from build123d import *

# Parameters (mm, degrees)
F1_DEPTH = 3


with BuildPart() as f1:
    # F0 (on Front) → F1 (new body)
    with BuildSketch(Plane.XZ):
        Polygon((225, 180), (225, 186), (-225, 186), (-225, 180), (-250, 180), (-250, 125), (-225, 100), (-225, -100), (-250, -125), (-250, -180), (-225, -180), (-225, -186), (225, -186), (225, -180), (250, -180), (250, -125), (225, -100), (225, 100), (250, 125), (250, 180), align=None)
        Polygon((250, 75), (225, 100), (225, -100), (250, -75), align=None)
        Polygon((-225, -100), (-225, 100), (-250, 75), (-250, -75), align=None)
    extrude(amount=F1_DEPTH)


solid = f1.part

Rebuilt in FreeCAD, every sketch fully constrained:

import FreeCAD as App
import Part
import Sketcher

doc = App.newDocument("Part")
body = doc.addObject("PartDesign::Body", "Body")

# Sketch on XZ plane
sketch1 = body.newObject("Sketcher::SketchObject", "Sketch")
sketch1.AttachmentSupport = (doc.getObject("XZ_Plane"), [""])
sketch1.MapMode = "FlatFace"
sketch1.addGeometry([
    Part.LineSegment(App.Vector(225, 180, 0), App.Vector(225, 186, 0)),  # 0
    Part.LineSegment(App.Vector(225, 186, 0), App.Vector(-225, 186, 0)),  # 1
    Part.LineSegment(App.Vector(-225, 186, 0), App.Vector(-225, 180, 0)),  # 2
    Part.LineSegment(App.Vector(-225, 180, 0), App.Vector(-250, 180, 0)),  # 3
    Part.LineSegment(App.Vector(-250, 180, 0), App.Vector(-250, 125, 0)),  # 4
    Part.LineSegment(App.Vector(-250, 125, 0), App.Vector(-225, 100, 0)),  # 5
    Part.LineSegment(App.Vector(-225, 100, 0), App.Vector(-250, 75, 0)),  # 6
    Part.LineSegment(App.Vector(-250, 75, 0), App.Vector(-250, -75, 0)),  # 7
    Part.LineSegment(App.Vector(-250, -75, 0), App.Vector(-225, -100, 0)),  # 8
    Part.LineSegment(App.Vector(-225, -100, 0), App.Vector(-250, -125, 0)),  # 9
    Part.LineSegment(App.Vector(-250, -125, 0), App.Vector(-250, -180, 0)),  # 10
    Part.LineSegment(App.Vector(-250, -180, 0), App.Vector(-225, -180, 0)),  # 11
    Part.LineSegment(App.Vector(-225, -180, 0), App.Vector(-225, -186, 0)),  # 12
    Part.LineSegment(App.Vector(-225, -186, 0), App.Vector(225, -186, 0)),  # 13
    Part.LineSegment(App.Vector(225, -186, 0), App.Vector(225, -180, 0)),  # 14
    Part.LineSegment(App.Vector(225, -180, 0), App.Vector(250, -180, 0)),  # 15
    Part.LineSegment(App.Vector(250, -180, 0), App.Vector(250, -125, 0)),  # 16
    Part.LineSegment(App.Vector(250, -125, 0), App.Vector(225, -100, 0)),  # 17
    Part.LineSegment(App.Vector(225, -100, 0), App.Vector(250, -75, 0)),  # 18
    Part.LineSegment(App.Vector(250, -75, 0), App.Vector(250, 75, 0)),  # 19
    Part.LineSegment(App.Vector(250, 75, 0), App.Vector(225, 100, 0)),  # 20
    Part.LineSegment(App.Vector(225, 100, 0), App.Vector(250, 125, 0)),  # 21
    Part.LineSegment(App.Vector(250, 125, 0), App.Vector(250, 180, 0)),  # 22
    Part.LineSegment(App.Vector(250, 180, 0), App.Vector(225, 180, 0)),  # 23
], False)
sketch1.addConstraint([
    Sketcher.Constraint("Coincident", 0, 2, 1, 1),
    Sketcher.Constraint("Coincident", 1, 2, 2, 1),
    Sketcher.Constraint("Coincident", 2, 2, 3, 1),
    Sketcher.Constraint("Coincident", 3, 2, 4, 1),
    Sketcher.Constraint("Coincident", 4, 2, 5, 1),
    Sketcher.Constraint("Coincident", 5, 2, 6, 1),
    Sketcher.Constraint("Coincident", 6, 2, 7, 1),
    Sketcher.Constraint("Coincident", 7, 2, 8, 1),
    Sketcher.Constraint("Coincident", 8, 2, 9, 1),
    Sketcher.Constraint("Coincident", 9, 2, 10, 1),
    Sketcher.Constraint("Coincident", 10, 2, 11, 1),
    Sketcher.Constraint("Coincident", 11, 2, 12, 1),
    Sketcher.Constraint("Coincident", 12, 2, 13, 1),
    Sketcher.Constraint("Coincident", 13, 2, 14, 1),
    Sketcher.Constraint("Coincident", 14, 2, 15, 1),
    Sketcher.Constraint("Coincident", 15, 2, 16, 1),
    Sketcher.Constraint("Coincident", 16, 2, 17, 1),
    Sketcher.Constraint("Coincident", 17, 2, 18, 1),
    Sketcher.Constraint("Coincident", 18, 2, 19, 1),
    Sketcher.Constraint("Coincident", 19, 2, 20, 1),
    Sketcher.Constraint("Coincident", 20, 2, 21, 1),
    Sketcher.Constraint("Coincident", 21, 2, 22, 1),
    Sketcher.Constraint("Coincident", 22, 2, 23, 1),
    Sketcher.Constraint("Coincident", 23, 2, 0, 1),
    Sketcher.Constraint("Vertical", 0),
    Sketcher.Constraint("Horizontal", 1),
    Sketcher.Constraint("Vertical", 2),
    Sketcher.Constraint("Horizontal", 3),
    Sketcher.Constraint("Vertical", 4),
    Sketcher.Constraint("Vertical", 7),
    Sketcher.Constraint("Vertical", 10),
    Sketcher.Constraint("Horizontal", 11),
    Sketcher.Constraint("Vertical", 12),
    Sketcher.Constraint("Horizontal", 13),
    Sketcher.Constraint("Vertical", 14),
    Sketcher.Constraint("Horizontal", 15),
    Sketcher.Constraint("Vertical", 16),
    Sketcher.Constraint("Vertical", 19),
    Sketcher.Constraint("Vertical", 22),
    Sketcher.Constraint("Horizontal", 23),
    Sketcher.Constraint("Symmetric", 0, 2, 12, 2, -1, 1),
    Sketcher.Constraint("Symmetric", 2, 2, 14, 2, -1, 1),
    Sketcher.Constraint("Symmetric", 4, 2, 16, 2, -1, 1),
    Sketcher.Constraint("Symmetric", 5, 2, 17, 2, -1, 1),
    Sketcher.Constraint("Symmetric", 6, 2, 18, 2, -1, 1),
    Sketcher.Constraint("Symmetric", 8, 2, 20, 2, -1, 1),
    Sketcher.Constraint("Symmetric", 9, 2, 21, 2, -1, 1),
    Sketcher.Constraint("Symmetric", 11, 2, 14, 2, -2),
    Sketcher.Constraint("Symmetric", 9, 2, 16, 2, -2),
    Sketcher.Constraint("Symmetric", 8, 2, 17, 2, -2),
    Sketcher.Constraint("Perpendicular", 5, 6),
    Sketcher.Constraint("Perpendicular", 6, 8),
    Sketcher.Constraint("Perpendicular", 8, 9),
    Sketcher.Constraint("Perpendicular", 18, 20),
    Sketcher.Constraint("Horizontal", 3, 2, 22, 2),
    Sketcher.Constraint("Vertical", 2, 2, 5, 2),
    Sketcher.Constraint("Vertical", 4, 2, 6, 2),
    Sketcher.Constraint("DistanceX", 1, 2, 1, 1, 450.0),
    Sketcher.Constraint("DistanceX", 3, 2, 3, 1, 25.0),
    Sketcher.Constraint("DistanceY", 0, 1, 0, 2, 6.0),
    Sketcher.Constraint("DistanceY", 4, 2, 4, 1, 55.0),
    Sketcher.Constraint("DistanceY", 7, 2, 7, 1, 150.0),
])
pad1 = body.newObject("PartDesign::Pad", "Pad")
pad1.Profile = sketch1
pad1.Length = 3

doc.recompute()
